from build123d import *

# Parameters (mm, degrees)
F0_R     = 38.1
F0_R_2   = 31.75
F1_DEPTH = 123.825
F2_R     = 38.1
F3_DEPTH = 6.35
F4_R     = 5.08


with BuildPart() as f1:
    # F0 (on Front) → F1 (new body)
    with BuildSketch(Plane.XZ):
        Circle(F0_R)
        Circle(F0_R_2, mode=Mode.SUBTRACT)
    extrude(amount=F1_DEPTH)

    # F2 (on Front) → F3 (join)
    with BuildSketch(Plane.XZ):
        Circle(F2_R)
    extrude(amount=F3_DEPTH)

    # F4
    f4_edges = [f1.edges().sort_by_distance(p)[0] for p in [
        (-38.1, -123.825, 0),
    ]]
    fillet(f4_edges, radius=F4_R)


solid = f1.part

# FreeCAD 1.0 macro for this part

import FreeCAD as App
import Part
import Sketcher

V = App.Vector
Q = App.Units.Quantity


def edges_at(feature, points):
    """Names of the edges that pass closest to the given points."""
    edges = feature.Shape.Edges
    near = lambda p: min(range(len(edges)), key=lambda i: edges[i].distToShape(Part.Vertex(*p))[0])
    return sorted({f"Edge{near(p) + 1}" for p in points})

doc = App.newDocument("Part")
body = doc.addObject("PartDesign::Body", "Body")

# Sketch on XZ plane
sketch1 = doc.addObject("Sketcher::SketchObject", "Sketch")
body.addObject(sketch1)
sketch1.AttachmentSupport = (doc.XZ_Plane, [""])
sketch1.MapMode = "FlatFace"
sketch1.addGeometry([
    Part.Circle(V(0, 0, 0), V(0, 0, 1), 38),
    Part.Circle(V(0, 0, 0), V(0, 0, 1), 32),
], False)
sketch1.addConstraint([
    Sketcher.Constraint("Coincident", 0, 3, -1, 1),
    Sketcher.Constraint("Coincident", 1, 3, -1, 1),
    Sketcher.Constraint("Diameter", 0, Q("3 in")),
    Sketcher.Constraint("Diameter", 1, Q("2.5 in")),
])
pad1 = doc.addObject("PartDesign::Pad", "Pad")
body.addObject(pad1)
pad1.Profile = sketch1
pad1.Length = Q("4.875 in")

# Sketch on XZ plane
sketch2 = doc.addObject("Sketcher::SketchObject", "Sketch001")
body.addObject(sketch2)
sketch2.AttachmentSupport = (doc.XZ_Plane, [""])
sketch2.MapMode = "FlatFace"
sketch2.addGeometry(Part.Circle(V(0, 0, 0), V(0, 0, 1), 38), False)
sketch2.addConstraint([
    Sketcher.Constraint("Coincident", 0, 3, -1, 1),
    Sketcher.Constraint("Diameter", 0, Q("3 in")),
])
pad2 = doc.addObject("PartDesign::Pad", "Pad001")
body.addObject(pad2)
pad2.Profile = sketch2
pad2.Length = Q("0.25 in")
doc.recompute()

fillet = doc.addObject("PartDesign::Fillet", "Fillet")
body.addObject(fillet)
fillet.Base = (pad2, edges_at(pad2, [(-38.1, -123.825, 0)]))
fillet.Radius = Q("0.2 in")

doc.recompute()
